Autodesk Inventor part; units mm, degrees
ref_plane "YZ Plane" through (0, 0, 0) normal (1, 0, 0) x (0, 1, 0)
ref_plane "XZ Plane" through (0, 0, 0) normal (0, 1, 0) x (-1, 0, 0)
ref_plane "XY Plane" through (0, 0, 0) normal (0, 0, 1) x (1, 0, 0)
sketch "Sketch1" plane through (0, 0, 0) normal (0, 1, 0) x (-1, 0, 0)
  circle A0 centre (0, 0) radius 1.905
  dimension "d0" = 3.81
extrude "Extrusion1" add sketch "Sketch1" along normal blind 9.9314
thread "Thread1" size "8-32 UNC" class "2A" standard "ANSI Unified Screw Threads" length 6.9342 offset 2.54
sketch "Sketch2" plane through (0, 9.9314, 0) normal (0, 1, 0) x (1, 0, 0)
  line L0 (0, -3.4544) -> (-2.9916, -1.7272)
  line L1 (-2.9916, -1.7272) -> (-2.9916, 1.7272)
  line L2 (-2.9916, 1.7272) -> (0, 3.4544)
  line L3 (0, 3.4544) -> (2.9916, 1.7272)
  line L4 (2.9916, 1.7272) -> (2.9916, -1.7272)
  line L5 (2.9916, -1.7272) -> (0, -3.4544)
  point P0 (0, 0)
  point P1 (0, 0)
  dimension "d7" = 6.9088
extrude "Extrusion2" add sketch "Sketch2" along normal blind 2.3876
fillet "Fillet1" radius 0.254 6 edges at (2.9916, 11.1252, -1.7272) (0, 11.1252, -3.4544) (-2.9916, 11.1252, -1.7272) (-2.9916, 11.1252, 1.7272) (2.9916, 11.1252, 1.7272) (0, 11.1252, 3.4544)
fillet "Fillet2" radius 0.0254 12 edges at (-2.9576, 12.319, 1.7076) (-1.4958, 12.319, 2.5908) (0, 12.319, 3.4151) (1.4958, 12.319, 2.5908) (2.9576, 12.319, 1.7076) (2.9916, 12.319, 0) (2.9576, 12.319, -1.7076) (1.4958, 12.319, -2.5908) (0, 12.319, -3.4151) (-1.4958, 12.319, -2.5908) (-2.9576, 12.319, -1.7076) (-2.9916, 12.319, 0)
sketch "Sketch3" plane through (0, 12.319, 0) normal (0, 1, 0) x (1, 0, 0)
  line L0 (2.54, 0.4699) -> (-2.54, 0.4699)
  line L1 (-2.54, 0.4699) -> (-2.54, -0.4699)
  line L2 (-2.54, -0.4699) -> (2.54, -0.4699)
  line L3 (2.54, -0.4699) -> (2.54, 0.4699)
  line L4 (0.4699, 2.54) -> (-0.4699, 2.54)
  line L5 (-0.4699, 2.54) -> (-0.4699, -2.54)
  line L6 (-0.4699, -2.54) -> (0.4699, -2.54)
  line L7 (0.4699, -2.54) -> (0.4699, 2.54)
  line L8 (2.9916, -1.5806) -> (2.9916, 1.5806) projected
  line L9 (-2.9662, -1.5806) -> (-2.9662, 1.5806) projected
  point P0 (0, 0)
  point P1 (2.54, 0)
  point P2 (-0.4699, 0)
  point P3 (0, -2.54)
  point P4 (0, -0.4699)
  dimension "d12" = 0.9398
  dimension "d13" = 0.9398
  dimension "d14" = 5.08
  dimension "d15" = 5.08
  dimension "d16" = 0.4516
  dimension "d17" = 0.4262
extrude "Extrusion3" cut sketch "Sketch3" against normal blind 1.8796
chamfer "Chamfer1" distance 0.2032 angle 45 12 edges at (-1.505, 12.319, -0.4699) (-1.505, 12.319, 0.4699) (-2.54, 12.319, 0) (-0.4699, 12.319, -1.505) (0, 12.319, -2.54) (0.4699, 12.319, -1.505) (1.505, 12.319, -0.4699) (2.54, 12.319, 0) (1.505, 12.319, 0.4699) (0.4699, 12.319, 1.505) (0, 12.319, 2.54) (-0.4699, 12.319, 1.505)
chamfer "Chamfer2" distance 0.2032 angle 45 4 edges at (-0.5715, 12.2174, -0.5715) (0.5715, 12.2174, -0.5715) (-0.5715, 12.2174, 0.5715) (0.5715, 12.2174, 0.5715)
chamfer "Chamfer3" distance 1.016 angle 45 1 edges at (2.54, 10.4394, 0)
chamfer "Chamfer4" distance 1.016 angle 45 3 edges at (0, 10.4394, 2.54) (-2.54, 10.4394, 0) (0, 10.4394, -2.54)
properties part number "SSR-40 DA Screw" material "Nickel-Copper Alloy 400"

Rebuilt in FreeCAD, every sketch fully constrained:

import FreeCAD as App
import Part
import Sketcher

V = App.Vector
Q = App.Units.Quantity


def edges_at(feature, points):
    """Names of the edges that pass closest to the given points."""
    edges = feature.Shape.Edges
    near = lambda p: min(range(len(edges)), key=lambda i: edges[i].distToShape(Part.Vertex(*p))[0])
    return sorted({f"Edge{near(p) + 1}" for p in points})

doc = App.newDocument("Part")
body = doc.addObject("PartDesign::Body", "Body")

# Sketch on XZ plane
sketch1 = body.newObject("Sketcher::SketchObject", "Sketch")
sketch1.AttachmentSupport = (doc.getObject("XZ_Plane"), [""])
sketch1.MapMode = "FlatFace"
sketch1.addGeometry(Part.Circle(V(0, 0, 0), V(0, 0, 1), 1.9), False)
sketch1.addConstraint([
    Sketcher.Constraint("Coincident", 0, 3, -1, 1),
    Sketcher.Constraint("Diameter", 0, Q("0.15 in")),
])
pad1 = body.newObject("PartDesign::Pad", "Pad")
pad1.Profile = sketch1
pad1.Length = Q("0.391 in")
pad1.Reversed = True

# Sketch on XZ plane
sketch2 = body.newObject("Sketcher::SketchObject", "Sketch001")
sketch2.AttachmentSupport = (doc.getObject("XZ_Plane"), [""])
sketch2.MapMode = "FlatFace"
sketch2.AttachmentOffset = App.Placement(V(0, 0, -0.391 * 25.4), App.Rotation())
sketch2.addGeometry([
    Part.LineSegment(V(-3, 1.7, 0), V(0, 3.5, 0)),  # 0
    Part.LineSegment(V(0, 3.5, 0), V(3, 1.7, 0)),  # 1
    Part.LineSegment(V(3, 1.7, 0), V(3, -1.7, 0)),  # 2
    Part.LineSegment(V(3, -1.7, 0), V(0, -3.5, 0)),  # 3
    Part.LineSegment(V(0, -3.5, 0), V(-3, -1.7, 0)),  # 4
    Part.LineSegment(V(-3, -1.7, 0), V(-3, 1.7, 0)),  # 5
], False)
sketch2.addConstraint([
    Sketcher.Constraint("Coincident", 0, 2, 1, 1),
    Sketcher.Constraint("Coincident", 1, 2, 2, 1),
    Sketcher.Constraint("Coincident", 2, 2, 3, 1),
    Sketcher.Constraint("Coincident", 3, 2, 4, 1),
    Sketcher.Constraint("Coincident", 4, 2, 5, 1),
    Sketcher.Constraint("Coincident", 5, 2, 0, 1),
    Sketcher.Constraint("Vertical", 2),
    Sketcher.Constraint("Vertical", 5),
    Sketcher.Constraint("Symmetric", 0, 2, 3, 2, -1, 1),
    Sketcher.Constraint("Symmetric", 1, 2, 4, 2, -1, 1),
    Sketcher.Constraint("PointOnObject", 0, 2, -2),
    Sketcher.Constraint("Parallel", 0, 3),
    Sketcher.Constraint("Horizontal", 2, 2, 4, 2),
    Sketcher.Constraint("Angle", 0, Q("30 deg")),
    Sketcher.Constraint("DistanceY", 3, 2, 0, 2, Q("0.272 in")),
    Sketcher.Constraint("DistanceY", 2, 2, 2, 1, Q("0.136 in")),
])
pad2 = body.newObject("PartDesign::Pad", "Pad001")
pad2.Profile = sketch2
pad2.Length = Q("0.094 in")
pad2.Reversed = True
doc.recompute()

fillet = body.newObject("PartDesign::Fillet", "Fillet")
fillet.Base = (pad2, edges_at(pad2, [
    (2.992, 11.125, -1.727),
    (0, 11.125, -3.454),
    (-2.992, 11.125, -1.727),
    (-2.992, 11.125, 1.727),
    (2.992, 11.125, 1.727),
    (0, 11.125, 3.454),
]))
fillet.Radius = Q("0.01 in")
doc.recompute()

fillet2 = body.newObject("PartDesign::Fillet", "Fillet001")
fillet2.Base = (fillet, edges_at(fillet, [
    (-2.958, 12.319, 1.708),
    (-1.496, 12.319, 2.591),
    (0, 12.319, 3.415),
    (1.496, 12.319, 2.591),
    (2.958, 12.319, 1.708),
    (2.992, 12.319, 0),
    (2.958, 12.319, -1.708),
    (1.496, 12.319, -2.591),
    (0, 12.319, -3.415),
    (-1.496, 12.319, -2.591),
    (-2.958, 12.319, -1.708),
    (-2.992, 12.319, 0),
]))
fillet2.Radius = Q("0.001 in")

# Sketch on XZ plane
sketch3 = body.newObject("Sketcher::SketchObject", "Sketch002")
sketch3.AttachmentSupport = (doc.getObject("XZ_Plane"), [""])
sketch3.MapMode = "FlatFace"
sketch3.AttachmentOffset = App.Placement(V(0, 0, -0.485 * 25.4), App.Rotation())
sketch3.addGeometry([
    Part.LineSegment(V(2.5, 0.5, 0), V(2.5, -0.5, 0)),  # 0
    Part.LineSegment(V(2.5, -0.5, 0), V(0.5, -0.5, 0)),  # 1
    Part.LineSegment(V(0.5, -0.5, 0), V(0.5, -2.5, 0)),  # 2
    Part.LineSegment(V(0.5, -2.5, 0), V(-0.5, -2.5, 0)),  # 3
    Part.LineSegment(V(-0.5, -2.5, 0), V(-0.5, -0.5, 0)),  # 4
    Part.LineSegment(V(-0.5, -0.5, 0), V(-2.5, -0.5, 0)),  # 5
    Part.LineSegment(V(-2.5, -0.5, 0), V(-2.5, 0.5, 0)),  # 6
    Part.LineSegment(V(-2.5, 0.5, 0), V(-0.5, 0.5, 0)),  # 7
    Part.LineSegment(V(-0.5, 0.5, 0), V(-0.5, 2.5, 0)),  # 8
    Part.LineSegment(V(-0.5, 2.5, 0), V(0.5, 2.5, 0)),  # 9
    Part.LineSegment(V(0.5, 2.5, 0), V(0.5, 0.5, 0)),  # 10
    Part.LineSegment(V(0.5, 0.5, 0), V(2.5, 0.5, 0)),  # 11
], False)
sketch3.addConstraint([
    Sketcher.Constraint("Coincident", 0, 2, 1, 1),
    Sketcher.Constraint("Coincident", 1, 2, 2, 1),
    Sketcher.Constraint("Coincident", 2, 2, 3, 1),
    Sketcher.Constraint("Coincident", 3, 2, 4, 1),
    Sketcher.Constraint("Coincident", 4, 2, 5, 1),
    Sketcher.Constraint("Coincident", 5, 2, 6, 1),
    Sketcher.Constraint("Coincident", 6, 2, 7, 1),
    Sketcher.Constraint("Coincident", 7, 2, 8, 1),
    Sketcher.Constraint("Coincident", 8, 2, 9, 1),
    Sketcher.Constraint("Coincident", 9, 2, 10, 1),
    Sketcher.Constraint("Coincident", 10, 2, 11, 1),
    Sketcher.Constraint("Coincident", 11, 2, 0, 1),
    Sketcher.Constraint("Vertical", 0),
    Sketcher.Constraint("Horizontal", 1),
    Sketcher.Constraint("Vertical", 2),
    Sketcher.Constraint("Horizontal", 3),
    Sketcher.Constraint("Vertical", 4),
    Sketcher.Constraint("Horizontal", 5),
    Sketcher.Constraint("Vertical", 6),
    Sketcher.Constraint("Horizontal", 7),
    Sketcher.Constraint("Vertical", 8),
    Sketcher.Constraint("Horizontal", 9),
    Sketcher.Constraint("Vertical", 10),
    Sketcher.Constraint("Horizontal", 11),
    Sketcher.Constraint("Symmetric", 0, 2, 6, 2, -1, 1),
    Sketcher.Constraint("Symmetric", 2, 2, 8, 2, -1, 1),
    Sketcher.Constraint("Symmetric", 4, 2, 10, 2, -1, 1),
    Sketcher.Constraint("Symmetric", 1, 2, 4, 2, -2),
    Sketcher.Constraint("Equal", 9, 0),
    Sketcher.Constraint("Equal", 11, 2),
    Sketcher.Constraint("DistanceX", 5, 2, 0, 2, Q("0.2 in")),
    Sketcher.Constraint("DistanceX", 3, 2, 3, 1, Q("0.037 in")),
])
pocket1 = body.newObject("PartDesign::Pocket", "Pocket")
pocket1.Profile = sketch3
pocket1.Length = Q("0.074 in")
pocket1.Reversed = True
doc.recompute()

chamfer = body.newObject("PartDesign::Chamfer", "Chamfer")
chamfer.Base = (pocket1, edges_at(pocket1, [
    (-1.505, 12.319, -0.47),
    (-1.505, 12.319, 0.47),
    (-2.54, 12.319, 0),
    (-0.47, 12.319, -1.505),
    (0, 12.319, -2.54),
    (0.47, 12.319, -1.505),
    (1.505, 12.319, -0.47),
    (2.54, 12.319, 0),
    (1.505, 12.319, 0.47),
    (0.47, 12.319, 1.505),
    (0, 12.319, 2.54),
    (-0.47, 12.319, 1.505),
]))
chamfer.Size = Q("0.008 in")
doc.recompute()

chamfer2 = body.newObject("PartDesign::Chamfer", "Chamfer001")
chamfer2.Base = (chamfer, edges_at(chamfer, [
    (-0.572, 12.217, -0.572),
    (0.572, 12.217, -0.572),
    (-0.572, 12.217, 0.572),
    (0.572, 12.217, 0.572),
]))
chamfer2.Size = Q("0.008 in")
doc.recompute()

chamfer3 = body.newObject("PartDesign::Chamfer", "Chamfer002")
chamfer3.Base = (chamfer2, edges_at(chamfer2, [(2.54, 10.439, 0)]))
chamfer3.Size = Q("0.04 in")
doc.recompute()

chamfer4 = body.newObject("PartDesign::Chamfer", "Chamfer003")
chamfer4.Base = (chamfer3, edges_at(chamfer3, [(0, 10.439, 2.54), (-2.54, 10.439, 0), (0, 10.439, -2.54)]))
chamfer4.Size = Q("0.04 in")

doc.recompute()
